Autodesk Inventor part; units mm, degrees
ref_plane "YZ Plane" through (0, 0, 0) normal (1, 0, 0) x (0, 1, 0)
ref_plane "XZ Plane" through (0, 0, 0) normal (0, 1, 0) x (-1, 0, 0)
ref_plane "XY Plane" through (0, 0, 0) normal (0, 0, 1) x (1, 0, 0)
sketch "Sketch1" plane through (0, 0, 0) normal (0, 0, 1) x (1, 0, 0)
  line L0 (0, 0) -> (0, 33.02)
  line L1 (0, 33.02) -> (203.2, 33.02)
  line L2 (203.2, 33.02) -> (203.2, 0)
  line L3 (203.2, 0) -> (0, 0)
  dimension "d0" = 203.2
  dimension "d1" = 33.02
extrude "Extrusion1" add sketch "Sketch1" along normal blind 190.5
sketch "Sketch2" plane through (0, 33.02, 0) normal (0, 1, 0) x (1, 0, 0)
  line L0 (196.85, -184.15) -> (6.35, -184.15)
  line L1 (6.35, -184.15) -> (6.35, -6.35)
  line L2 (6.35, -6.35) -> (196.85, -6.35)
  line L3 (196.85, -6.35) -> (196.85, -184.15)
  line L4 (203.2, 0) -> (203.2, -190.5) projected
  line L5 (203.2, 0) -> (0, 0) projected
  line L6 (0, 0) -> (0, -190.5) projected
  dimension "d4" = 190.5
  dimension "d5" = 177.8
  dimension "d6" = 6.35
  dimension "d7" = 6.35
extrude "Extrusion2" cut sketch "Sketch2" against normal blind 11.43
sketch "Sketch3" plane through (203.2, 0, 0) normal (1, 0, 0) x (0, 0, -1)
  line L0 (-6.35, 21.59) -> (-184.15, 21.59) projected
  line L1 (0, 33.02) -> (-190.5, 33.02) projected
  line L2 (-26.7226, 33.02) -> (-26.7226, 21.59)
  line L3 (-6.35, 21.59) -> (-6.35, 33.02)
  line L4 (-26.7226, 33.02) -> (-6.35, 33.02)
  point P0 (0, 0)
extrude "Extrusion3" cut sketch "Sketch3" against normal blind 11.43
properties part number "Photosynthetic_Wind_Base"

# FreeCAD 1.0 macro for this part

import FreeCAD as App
import Part
import Sketcher
from FreeCAD import Vector
Q = App.Units.Quantity

doc = App.newDocument("Part")
body = doc.addObject("PartDesign::Body", "Body")

# Sketch on XY plane
sketch1 = body.newObject("Sketcher::SketchObject", "Sketch")
sketch1.AttachmentSupport = (doc.getObject("XY_Plane"), [""])
sketch1.MapMode = "FlatFace"
sketch1.addGeometry([
    Part.LineSegment(Vector(0, 33, 0), Vector(0, 0, 0)),
    Part.LineSegment(Vector(0, 0, 0), Vector(203, 0, 0)),
    Part.LineSegment(Vector(203, 0, 0), Vector(203, 33, 0)),
    Part.LineSegment(Vector(203, 33, 0), Vector(0, 33, 0)),
], False)
sketch1.addConstraint([
    Sketcher.Constraint("Coincident", 0, 2, 1, 1),
    Sketcher.Constraint("Coincident", 1, 2, 2, 1),
    Sketcher.Constraint("Coincident", 2, 2, 3, 1),
    Sketcher.Constraint("Coincident", 3, 2, 0, 1),
    Sketcher.Constraint("Vertical", 0),
    Sketcher.Constraint("Horizontal", 1),
    Sketcher.Constraint("Vertical", 2),
    Sketcher.Constraint("Horizontal", 3),
    Sketcher.Constraint("Coincident", 0, 2, -1, 1),
    Sketcher.Constraint("DistanceX", 1, 1, 1, 2, Q("8 in")),
    Sketcher.Constraint("DistanceY", 0, 2, 0, 1, Q("1.3 in")),
])
pad1 = body.newObject("PartDesign::Pad", "Pad")
pad1.Profile = sketch1
pad1.Length = Q("7.5 in")

# Sketch on XZ plane
sketch2 = body.newObject("Sketcher::SketchObject", "Sketch001")
sketch2.AttachmentSupport = (doc.getObject("XZ_Plane"), [""])
sketch2.MapMode = "FlatFace"
sketch2.AttachmentOffset = App.Placement(Vector(0, 0, -1.3 * 25.4), App.Rotation())
sketch2.addGeometry([
    Part.LineSegment(Vector(6, 184, 0), Vector(197, 184, 0)),
    Part.LineSegment(Vector(197, 184, 0), Vector(197, 6, 0)),
    Part.LineSegment(Vector(197, 6, 0), Vector(6, 6, 0)),
    Part.LineSegment(Vector(6, 6, 0), Vector(6, 184, 0)),
], False)
sketch2.addConstraint([
    Sketcher.Constraint("Coincident", 0, 2, 1, 1),
    Sketcher.Constraint("Coincident", 1, 2, 2, 1),
    Sketcher.Constraint("Coincident", 2, 2, 3, 1),
    Sketcher.Constraint("Coincident", 3, 2, 0, 1),
    Sketcher.Constraint("Horizontal", 0),
    Sketcher.Constraint("Vertical", 1),
    Sketcher.Constraint("Horizontal", 2),
    Sketcher.Constraint("Vertical", 3),
    Sketcher.Constraint("DistanceY", 1, 2, 1, 1, Q("7 in")),
    Sketcher.Constraint("DistanceX", 0, 1, 0, 2, Q("7.5 in")),
    Sketcher.Constraint("DistanceY", -1, 1, 1, 2, Q("0.25 in")),
    Sketcher.Constraint("DistanceX", -1, 1, 2, 2, Q("0.25 in")),
])
pocket1 = body.newObject("PartDesign::Pocket", "Pocket")
pocket1.Profile = sketch2
pocket1.Length = Q("0.45 in")
pocket1.Reversed = True

# Sketch on YZ plane
sketch3 = body.newObject("Sketcher::SketchObject", "Sketch002")
sketch3.AttachmentSupport = (doc.getObject("YZ_Plane"), [""])
sketch3.MapMode = "FlatFace"
sketch3.AttachmentOffset = App.Placement(Vector(0, 0, 8 * 25.4), App.Rotation())
sketch3.addGeometry([
    Part.LineSegment(Vector(22, 27, 0), Vector(22, 6, 0)),
    Part.LineSegment(Vector(22, 6, 0), Vector(33, 6, 0)),
    Part.LineSegment(Vector(33, 6, 0), Vector(33, 27, 0)),
    Part.LineSegment(Vector(33, 27, 0), Vector(22, 27, 0)),
], False)
sketch3.addConstraint([
    Sketcher.Constraint("Coincident", 0, 2, 1, 1),
    Sketcher.Constraint("Coincident", 1, 2, 2, 1),
    Sketcher.Constraint("Coincident", 2, 2, 3, 1),
    Sketcher.Constraint("Coincident", 3, 2, 0, 1),
    Sketcher.Constraint("Vertical", 0),
    Sketcher.Constraint("Horizontal", 1),
    Sketcher.Constraint("Vertical", 2),
    Sketcher.Constraint("Horizontal", 3),
    Sketcher.Constraint("DistanceX", 1, 1, 1, 2, Q("0.45 in")),
    Sketcher.Constraint("DistanceX", -1, 1, 1, 2, Q("1.3 in")),
    Sketcher.Constraint("DistanceY", -1, 1, 0, 2, Q("0.25 in")),
    Sketcher.Constraint("DistanceY", 0, 2, 0, 1, Q("20.3726 mm")),
])
pocket2 = body.newObject("PartDesign::Pocket", "Pocket001")
pocket2.Profile = sketch3
pocket2.Length = Q("0.45 in")

doc.recompute()
